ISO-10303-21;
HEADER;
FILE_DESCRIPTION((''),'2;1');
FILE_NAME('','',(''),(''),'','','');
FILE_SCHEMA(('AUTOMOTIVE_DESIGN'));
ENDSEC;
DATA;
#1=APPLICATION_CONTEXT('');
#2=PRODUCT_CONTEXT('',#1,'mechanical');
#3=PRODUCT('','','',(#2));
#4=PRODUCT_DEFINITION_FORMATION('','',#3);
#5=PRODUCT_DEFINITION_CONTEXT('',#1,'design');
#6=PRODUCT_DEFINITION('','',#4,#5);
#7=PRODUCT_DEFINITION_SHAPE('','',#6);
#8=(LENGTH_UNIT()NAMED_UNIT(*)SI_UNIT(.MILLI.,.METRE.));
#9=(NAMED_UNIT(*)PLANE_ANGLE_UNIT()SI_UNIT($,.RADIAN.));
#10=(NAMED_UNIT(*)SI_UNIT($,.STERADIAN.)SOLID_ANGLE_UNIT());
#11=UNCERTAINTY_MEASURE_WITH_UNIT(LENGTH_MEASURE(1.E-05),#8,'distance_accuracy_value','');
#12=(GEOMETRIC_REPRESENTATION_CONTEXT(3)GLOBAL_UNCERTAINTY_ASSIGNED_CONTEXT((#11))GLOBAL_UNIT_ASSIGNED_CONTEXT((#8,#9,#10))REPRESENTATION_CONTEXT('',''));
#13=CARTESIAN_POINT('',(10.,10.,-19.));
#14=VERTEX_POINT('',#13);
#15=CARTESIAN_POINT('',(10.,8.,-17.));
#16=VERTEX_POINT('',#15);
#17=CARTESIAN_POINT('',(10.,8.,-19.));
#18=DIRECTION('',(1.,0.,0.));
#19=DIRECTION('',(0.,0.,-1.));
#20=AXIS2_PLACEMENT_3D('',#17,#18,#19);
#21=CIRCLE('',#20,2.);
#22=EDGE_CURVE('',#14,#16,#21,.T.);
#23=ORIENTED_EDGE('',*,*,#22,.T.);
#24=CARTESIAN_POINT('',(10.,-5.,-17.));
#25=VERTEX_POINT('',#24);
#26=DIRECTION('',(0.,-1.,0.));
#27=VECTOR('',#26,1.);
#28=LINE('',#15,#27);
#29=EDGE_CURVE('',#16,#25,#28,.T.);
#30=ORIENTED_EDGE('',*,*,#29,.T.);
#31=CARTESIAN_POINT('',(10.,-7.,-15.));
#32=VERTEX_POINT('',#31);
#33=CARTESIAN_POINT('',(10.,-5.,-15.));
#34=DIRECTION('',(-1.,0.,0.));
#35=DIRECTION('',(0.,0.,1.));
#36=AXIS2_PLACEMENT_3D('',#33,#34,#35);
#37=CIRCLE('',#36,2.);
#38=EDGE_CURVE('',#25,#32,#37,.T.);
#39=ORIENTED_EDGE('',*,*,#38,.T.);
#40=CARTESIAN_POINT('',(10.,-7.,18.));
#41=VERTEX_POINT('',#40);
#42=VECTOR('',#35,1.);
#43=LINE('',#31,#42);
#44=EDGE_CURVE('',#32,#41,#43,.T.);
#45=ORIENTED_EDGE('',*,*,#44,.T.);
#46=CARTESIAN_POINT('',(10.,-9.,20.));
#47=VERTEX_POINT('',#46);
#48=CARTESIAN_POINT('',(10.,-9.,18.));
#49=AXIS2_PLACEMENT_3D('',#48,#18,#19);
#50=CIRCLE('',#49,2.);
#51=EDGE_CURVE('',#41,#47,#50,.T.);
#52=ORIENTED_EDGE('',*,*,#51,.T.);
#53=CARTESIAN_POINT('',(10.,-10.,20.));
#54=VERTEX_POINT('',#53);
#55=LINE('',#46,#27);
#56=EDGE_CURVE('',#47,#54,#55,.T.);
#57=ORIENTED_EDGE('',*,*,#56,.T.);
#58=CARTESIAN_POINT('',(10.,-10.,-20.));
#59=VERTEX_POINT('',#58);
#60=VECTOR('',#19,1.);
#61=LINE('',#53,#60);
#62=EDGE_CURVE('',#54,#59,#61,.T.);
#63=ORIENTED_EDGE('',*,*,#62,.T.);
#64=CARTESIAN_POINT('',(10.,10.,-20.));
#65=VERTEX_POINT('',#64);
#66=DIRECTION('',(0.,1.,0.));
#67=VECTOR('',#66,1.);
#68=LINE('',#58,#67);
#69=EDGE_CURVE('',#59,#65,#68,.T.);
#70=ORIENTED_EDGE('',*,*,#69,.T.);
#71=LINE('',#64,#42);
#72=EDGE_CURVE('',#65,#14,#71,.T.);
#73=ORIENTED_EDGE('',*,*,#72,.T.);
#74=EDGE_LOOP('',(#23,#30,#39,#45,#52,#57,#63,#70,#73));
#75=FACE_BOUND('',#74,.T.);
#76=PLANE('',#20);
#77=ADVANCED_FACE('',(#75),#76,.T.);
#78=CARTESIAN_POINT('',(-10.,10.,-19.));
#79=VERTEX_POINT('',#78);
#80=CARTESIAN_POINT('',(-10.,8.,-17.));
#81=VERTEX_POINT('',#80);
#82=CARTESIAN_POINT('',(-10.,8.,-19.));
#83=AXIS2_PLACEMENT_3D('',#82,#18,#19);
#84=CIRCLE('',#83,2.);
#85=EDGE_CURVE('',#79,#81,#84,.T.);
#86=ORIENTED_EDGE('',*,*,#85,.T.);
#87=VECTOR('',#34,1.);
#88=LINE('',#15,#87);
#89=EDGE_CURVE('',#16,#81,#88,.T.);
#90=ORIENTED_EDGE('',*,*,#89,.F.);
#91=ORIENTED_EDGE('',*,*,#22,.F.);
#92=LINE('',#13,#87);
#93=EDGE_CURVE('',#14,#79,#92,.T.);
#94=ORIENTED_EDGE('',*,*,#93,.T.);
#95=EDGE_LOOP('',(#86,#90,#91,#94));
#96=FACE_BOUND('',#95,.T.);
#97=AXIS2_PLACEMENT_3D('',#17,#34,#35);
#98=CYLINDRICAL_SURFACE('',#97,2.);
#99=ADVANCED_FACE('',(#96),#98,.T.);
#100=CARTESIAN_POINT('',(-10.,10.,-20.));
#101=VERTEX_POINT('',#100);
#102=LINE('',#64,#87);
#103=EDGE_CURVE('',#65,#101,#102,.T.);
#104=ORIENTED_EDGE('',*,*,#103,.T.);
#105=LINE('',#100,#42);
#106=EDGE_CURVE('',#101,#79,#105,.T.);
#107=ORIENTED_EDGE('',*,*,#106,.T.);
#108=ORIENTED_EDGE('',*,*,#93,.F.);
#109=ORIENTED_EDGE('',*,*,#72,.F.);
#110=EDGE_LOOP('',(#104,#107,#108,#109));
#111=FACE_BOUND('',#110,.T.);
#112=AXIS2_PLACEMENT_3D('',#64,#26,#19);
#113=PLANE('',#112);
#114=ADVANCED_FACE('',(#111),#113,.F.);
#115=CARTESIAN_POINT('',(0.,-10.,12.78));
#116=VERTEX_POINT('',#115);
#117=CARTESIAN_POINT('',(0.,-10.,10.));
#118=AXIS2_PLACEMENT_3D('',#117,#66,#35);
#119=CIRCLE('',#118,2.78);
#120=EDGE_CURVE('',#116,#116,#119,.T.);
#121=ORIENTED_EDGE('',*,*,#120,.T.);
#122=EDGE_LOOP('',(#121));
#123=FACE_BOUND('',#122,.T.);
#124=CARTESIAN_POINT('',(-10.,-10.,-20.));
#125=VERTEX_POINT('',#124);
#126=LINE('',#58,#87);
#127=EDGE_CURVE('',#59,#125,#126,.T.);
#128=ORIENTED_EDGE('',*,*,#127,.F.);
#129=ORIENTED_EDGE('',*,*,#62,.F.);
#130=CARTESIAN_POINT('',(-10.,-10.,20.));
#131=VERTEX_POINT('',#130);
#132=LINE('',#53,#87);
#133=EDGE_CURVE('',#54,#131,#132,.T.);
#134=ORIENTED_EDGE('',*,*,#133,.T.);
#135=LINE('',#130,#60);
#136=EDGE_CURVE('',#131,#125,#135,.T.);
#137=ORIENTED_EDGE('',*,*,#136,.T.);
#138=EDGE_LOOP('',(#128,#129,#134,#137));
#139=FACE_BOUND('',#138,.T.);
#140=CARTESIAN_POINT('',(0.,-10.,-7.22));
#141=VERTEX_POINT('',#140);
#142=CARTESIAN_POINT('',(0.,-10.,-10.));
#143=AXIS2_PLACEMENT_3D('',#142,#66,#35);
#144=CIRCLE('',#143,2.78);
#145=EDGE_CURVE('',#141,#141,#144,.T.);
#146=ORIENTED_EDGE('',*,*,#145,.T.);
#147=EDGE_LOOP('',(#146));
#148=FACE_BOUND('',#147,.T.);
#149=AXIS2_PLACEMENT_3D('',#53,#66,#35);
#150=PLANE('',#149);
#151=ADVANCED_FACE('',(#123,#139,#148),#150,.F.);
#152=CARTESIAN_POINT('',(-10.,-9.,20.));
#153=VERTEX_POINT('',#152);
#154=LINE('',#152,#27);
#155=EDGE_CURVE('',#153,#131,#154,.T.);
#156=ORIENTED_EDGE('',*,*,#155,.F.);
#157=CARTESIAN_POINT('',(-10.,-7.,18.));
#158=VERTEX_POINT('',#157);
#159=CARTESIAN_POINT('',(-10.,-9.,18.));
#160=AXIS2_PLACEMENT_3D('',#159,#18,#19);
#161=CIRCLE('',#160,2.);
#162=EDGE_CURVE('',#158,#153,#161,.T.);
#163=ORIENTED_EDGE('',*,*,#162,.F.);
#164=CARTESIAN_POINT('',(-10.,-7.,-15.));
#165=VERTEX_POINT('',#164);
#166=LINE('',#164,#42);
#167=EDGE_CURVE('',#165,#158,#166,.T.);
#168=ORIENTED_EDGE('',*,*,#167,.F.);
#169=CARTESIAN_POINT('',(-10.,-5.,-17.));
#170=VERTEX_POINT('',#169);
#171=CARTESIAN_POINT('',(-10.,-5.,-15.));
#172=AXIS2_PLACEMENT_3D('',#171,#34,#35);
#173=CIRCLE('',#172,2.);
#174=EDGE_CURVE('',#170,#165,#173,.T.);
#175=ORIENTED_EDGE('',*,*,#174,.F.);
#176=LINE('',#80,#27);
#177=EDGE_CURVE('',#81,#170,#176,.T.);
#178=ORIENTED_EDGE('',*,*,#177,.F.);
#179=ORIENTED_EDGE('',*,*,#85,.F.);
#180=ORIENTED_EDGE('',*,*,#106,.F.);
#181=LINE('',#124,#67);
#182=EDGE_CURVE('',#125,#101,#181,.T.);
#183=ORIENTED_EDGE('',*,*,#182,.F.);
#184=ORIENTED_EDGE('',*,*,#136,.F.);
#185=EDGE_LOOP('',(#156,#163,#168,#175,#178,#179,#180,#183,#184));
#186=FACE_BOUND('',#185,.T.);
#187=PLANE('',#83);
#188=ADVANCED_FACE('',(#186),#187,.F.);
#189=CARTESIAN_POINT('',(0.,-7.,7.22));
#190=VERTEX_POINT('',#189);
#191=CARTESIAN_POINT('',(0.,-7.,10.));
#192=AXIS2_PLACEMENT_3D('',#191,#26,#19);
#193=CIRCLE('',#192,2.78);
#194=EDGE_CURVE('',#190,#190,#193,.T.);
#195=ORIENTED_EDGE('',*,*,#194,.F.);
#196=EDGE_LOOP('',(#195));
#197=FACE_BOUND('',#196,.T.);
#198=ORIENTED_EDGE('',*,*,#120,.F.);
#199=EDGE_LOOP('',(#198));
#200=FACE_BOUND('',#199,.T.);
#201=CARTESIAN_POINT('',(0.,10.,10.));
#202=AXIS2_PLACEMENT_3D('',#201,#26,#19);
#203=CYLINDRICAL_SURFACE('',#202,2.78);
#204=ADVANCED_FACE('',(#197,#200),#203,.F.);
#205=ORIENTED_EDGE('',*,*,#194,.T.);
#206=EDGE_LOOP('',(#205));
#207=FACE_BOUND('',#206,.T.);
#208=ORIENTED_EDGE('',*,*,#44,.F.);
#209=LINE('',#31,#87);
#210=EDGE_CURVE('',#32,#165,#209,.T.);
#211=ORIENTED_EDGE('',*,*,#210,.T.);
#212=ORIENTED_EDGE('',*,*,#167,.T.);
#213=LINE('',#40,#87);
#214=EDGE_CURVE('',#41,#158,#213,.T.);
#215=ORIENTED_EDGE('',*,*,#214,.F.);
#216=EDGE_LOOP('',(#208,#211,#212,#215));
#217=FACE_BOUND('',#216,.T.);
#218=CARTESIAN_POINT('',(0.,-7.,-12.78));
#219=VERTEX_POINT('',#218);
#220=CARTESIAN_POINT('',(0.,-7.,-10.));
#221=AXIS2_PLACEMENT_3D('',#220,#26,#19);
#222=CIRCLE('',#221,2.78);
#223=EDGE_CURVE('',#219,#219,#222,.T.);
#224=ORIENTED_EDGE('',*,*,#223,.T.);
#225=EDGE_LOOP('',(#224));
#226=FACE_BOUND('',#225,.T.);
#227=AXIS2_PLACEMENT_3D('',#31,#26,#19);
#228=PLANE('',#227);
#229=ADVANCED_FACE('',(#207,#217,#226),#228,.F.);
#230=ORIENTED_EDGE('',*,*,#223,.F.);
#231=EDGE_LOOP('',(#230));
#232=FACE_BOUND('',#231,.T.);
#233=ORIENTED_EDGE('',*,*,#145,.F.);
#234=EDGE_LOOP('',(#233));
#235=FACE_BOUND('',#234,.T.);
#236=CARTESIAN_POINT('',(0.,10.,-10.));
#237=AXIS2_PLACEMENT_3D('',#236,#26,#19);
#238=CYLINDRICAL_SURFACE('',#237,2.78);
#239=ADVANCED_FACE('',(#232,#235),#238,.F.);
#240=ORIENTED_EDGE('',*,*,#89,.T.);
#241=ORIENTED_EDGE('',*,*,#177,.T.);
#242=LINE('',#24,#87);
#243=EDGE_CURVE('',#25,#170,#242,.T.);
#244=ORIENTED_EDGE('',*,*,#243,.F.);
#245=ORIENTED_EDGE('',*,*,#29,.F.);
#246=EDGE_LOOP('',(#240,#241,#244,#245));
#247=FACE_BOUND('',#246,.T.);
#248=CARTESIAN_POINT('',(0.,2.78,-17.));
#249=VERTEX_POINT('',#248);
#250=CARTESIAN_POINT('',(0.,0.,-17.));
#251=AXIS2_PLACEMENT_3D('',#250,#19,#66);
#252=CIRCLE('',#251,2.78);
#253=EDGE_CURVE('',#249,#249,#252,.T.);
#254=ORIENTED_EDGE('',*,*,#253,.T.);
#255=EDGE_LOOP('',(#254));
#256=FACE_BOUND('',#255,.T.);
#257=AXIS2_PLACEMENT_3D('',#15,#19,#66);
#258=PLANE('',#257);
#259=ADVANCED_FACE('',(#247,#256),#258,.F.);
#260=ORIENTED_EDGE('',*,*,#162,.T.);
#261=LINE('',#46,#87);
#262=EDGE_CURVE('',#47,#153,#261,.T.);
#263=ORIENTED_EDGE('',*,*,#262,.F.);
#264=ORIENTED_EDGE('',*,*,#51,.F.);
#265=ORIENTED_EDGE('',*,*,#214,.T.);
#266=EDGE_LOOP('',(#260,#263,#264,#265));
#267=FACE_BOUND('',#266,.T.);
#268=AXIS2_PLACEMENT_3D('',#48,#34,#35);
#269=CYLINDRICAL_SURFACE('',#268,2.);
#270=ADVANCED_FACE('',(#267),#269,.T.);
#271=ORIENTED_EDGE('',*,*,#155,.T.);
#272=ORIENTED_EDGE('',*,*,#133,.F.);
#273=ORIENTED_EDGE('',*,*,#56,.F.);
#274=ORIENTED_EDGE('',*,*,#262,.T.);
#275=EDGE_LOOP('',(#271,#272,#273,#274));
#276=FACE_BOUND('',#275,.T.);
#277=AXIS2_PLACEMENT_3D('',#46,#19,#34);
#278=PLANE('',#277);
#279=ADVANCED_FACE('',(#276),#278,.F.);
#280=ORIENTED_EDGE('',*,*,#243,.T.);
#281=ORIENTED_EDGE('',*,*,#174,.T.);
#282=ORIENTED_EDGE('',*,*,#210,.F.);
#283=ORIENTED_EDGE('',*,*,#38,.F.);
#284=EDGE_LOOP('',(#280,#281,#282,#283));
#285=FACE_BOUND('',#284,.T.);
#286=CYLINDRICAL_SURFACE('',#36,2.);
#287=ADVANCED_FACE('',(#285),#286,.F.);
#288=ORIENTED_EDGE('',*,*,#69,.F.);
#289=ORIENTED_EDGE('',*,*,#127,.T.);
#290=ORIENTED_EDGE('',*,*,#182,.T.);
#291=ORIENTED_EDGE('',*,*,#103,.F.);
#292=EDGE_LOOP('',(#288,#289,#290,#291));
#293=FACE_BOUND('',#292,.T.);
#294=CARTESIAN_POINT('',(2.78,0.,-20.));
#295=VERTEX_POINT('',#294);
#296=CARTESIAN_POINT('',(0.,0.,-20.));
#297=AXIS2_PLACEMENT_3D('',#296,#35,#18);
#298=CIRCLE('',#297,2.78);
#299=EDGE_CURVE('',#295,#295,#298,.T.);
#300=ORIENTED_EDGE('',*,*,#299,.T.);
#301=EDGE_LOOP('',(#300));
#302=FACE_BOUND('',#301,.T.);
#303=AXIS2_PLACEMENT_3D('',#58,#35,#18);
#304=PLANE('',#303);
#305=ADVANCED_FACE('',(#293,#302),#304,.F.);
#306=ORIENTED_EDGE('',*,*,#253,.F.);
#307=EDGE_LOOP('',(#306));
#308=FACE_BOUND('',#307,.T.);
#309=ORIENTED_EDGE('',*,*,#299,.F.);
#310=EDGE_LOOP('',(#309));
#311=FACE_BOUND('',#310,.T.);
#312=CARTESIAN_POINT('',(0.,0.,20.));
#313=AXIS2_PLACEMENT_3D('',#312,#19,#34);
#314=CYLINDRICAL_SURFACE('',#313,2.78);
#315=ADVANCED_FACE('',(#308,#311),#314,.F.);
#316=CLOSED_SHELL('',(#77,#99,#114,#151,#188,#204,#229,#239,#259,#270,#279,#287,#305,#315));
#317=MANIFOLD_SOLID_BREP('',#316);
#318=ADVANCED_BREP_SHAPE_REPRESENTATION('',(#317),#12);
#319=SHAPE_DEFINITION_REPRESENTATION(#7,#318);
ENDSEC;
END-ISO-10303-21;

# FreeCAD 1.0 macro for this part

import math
import FreeCAD as App
import Part
import Sketcher
Q = App.Units.Quantity

doc = App.newDocument("Part")
body = doc.addObject("PartDesign::Body", "Body")

sketch1 = body.newObject("Sketcher::SketchObject", "Sketch")
sketch1.AttachmentSupport = (doc.getObject("YZ_Plane"), [""])
sketch1.MapMode = "FlatFace"
sketch1.addGeometry(Part.LineSegment(App.Vector(-10, 20, 0), App.Vector(-10, -20, 0)), False)
sketch1.addGeometry(Part.LineSegment(App.Vector(-10, -20, 0), App.Vector(10, -20, 0)), False)
sketch1.addGeometry(Part.LineSegment(App.Vector(10, -20, 0), App.Vector(10, -19, 0)), False)
sketch1.addGeometry(Part.ArcOfCircle(Part.Circle(App.Vector(8, -19, 0), App.Vector(0, 0, 1), 2), math.radians(0), math.radians(90)), False)
sketch1.addGeometry(Part.LineSegment(App.Vector(8, -17, 0), App.Vector(-5, -17, 0)), False)
sketch1.addGeometry(Part.ArcOfCircle(Part.Circle(App.Vector(-5, -15, 0), App.Vector(0, 0, 1), 2), math.radians(-180), math.radians(-90)), False)
sketch1.addGeometry(Part.LineSegment(App.Vector(-7, -15, 0), App.Vector(-7, 18, 0)), False)
sketch1.addGeometry(Part.ArcOfCircle(Part.Circle(App.Vector(-9, 18, 0), App.Vector(0, 0, 1), 2), math.radians(0), math.radians(90)), False)
sketch1.addGeometry(Part.LineSegment(App.Vector(-9, 20, 0), App.Vector(-10, 20, 0)), False)
sketch1.addConstraint(Sketcher.Constraint("Coincident", 0, 2, 1, 1))
sketch1.addConstraint(Sketcher.Constraint("Coincident", 1, 2, 2, 1))
sketch1.addConstraint(Sketcher.Constraint("Tangent", 2, 2, 3, 1))
sketch1.addConstraint(Sketcher.Constraint("Tangent", 3, 2, 4, 1))
sketch1.addConstraint(Sketcher.Constraint("Tangent", 4, 2, 5, 2))
sketch1.addConstraint(Sketcher.Constraint("Tangent", 5, 1, 6, 1))
sketch1.addConstraint(Sketcher.Constraint("Tangent", 6, 2, 7, 1))
sketch1.addConstraint(Sketcher.Constraint("Tangent", 7, 2, 8, 1))
sketch1.addConstraint(Sketcher.Constraint("Coincident", 8, 2, 0, 1))
sketch1.addConstraint(Sketcher.Constraint("Vertical", 0))
sketch1.addConstraint(Sketcher.Constraint("Horizontal", 1))
sketch1.addConstraint(Sketcher.Constraint("Vertical", 2))
sketch1.addConstraint(Sketcher.Constraint("Horizontal", 4))
sketch1.addConstraint(Sketcher.Constraint("Vertical", 6))
sketch1.addConstraint(Sketcher.Constraint("Horizontal", 8))
sketch1.addConstraint(Sketcher.Constraint("Equal", 3, 5))
sketch1.addConstraint(Sketcher.Constraint("Equal", 5, 7))
sketch1.addConstraint(Sketcher.Constraint("Symmetric", 1, 2, 8, 2, -1, 1))
sketch1.addConstraint(Sketcher.Constraint("Equal", 8, 2))
sketch1.addConstraint(Sketcher.Constraint("Radius", 3, Q("2 mm")))
sketch1.addConstraint(Sketcher.Constraint("DistanceX", 1, 1, 1, 2, Q("20 mm")))
sketch1.addConstraint(Sketcher.Constraint("DistanceX", 4, 2, 4, 1, Q("13 mm")))
sketch1.addConstraint(Sketcher.Constraint("DistanceY", 0, 2, 0, 1, Q("40 mm")))
pad1 = body.newObject("PartDesign::Pad", "Pad")
pad1.Profile = sketch1
pad1.Length = 20
pad1.Midplane = True

sketch2 = body.newObject("Sketcher::SketchObject", "Sketch001")
sketch2.AttachmentSupport = (doc.getObject("XY_Plane"), [""])
sketch2.MapMode = "FlatFace"
sketch2.AttachmentOffset = App.Placement(App.Vector(0, 0, -20), App.Rotation())
sketch2.addGeometry(Part.Circle(App.Vector(0, 0, 0), App.Vector(0, 0, 1), 2.8), False)
sketch2.addConstraint(Sketcher.Constraint("Coincident", 0, 3, -1, 1))
sketch2.addConstraint(Sketcher.Constraint("Diameter", 0, Q("5.56 mm")))
pocket1 = body.newObject("PartDesign::Pocket", "Pocket")
pocket1.Profile = sketch2
pocket1.Type = "ThroughAll"
pocket1.Midplane = True

sketch3 = body.newObject("Sketcher::SketchObject", "Sketch002")
sketch3.AttachmentSupport = (doc.getObject("XZ_Plane"), [""])
sketch3.MapMode = "FlatFace"
sketch3.AttachmentOffset = App.Placement(App.Vector(0, 0, 10), App.Rotation())
sketch3.addGeometry(Part.Circle(App.Vector(0, 10, 0), App.Vector(0, 0, 1), 2.8), False)
sketch3.addGeometry(Part.Circle(App.Vector(0, -10, 0), App.Vector(0, 0, 1), 2.8), False)
sketch3.addConstraint(Sketcher.Constraint("Equal", 0, 1))
sketch3.addConstraint(Sketcher.Constraint("Symmetric", 0, 3, 1, 3, -1, 1))
sketch3.addConstraint(Sketcher.Constraint("PointOnObject", 0, 3, -2))
sketch3.addConstraint(Sketcher.Constraint("Diameter", 0, Q("5.56 mm")))
sketch3.addConstraint(Sketcher.Constraint("DistanceY", -1, 1, 0, 3, Q("10 mm")))
pocket2 = body.newObject("PartDesign::Pocket", "Pocket001")
pocket2.Profile = sketch3
pocket2.Type = "ThroughAll"
pocket2.Midplane = True

doc.recompute()
